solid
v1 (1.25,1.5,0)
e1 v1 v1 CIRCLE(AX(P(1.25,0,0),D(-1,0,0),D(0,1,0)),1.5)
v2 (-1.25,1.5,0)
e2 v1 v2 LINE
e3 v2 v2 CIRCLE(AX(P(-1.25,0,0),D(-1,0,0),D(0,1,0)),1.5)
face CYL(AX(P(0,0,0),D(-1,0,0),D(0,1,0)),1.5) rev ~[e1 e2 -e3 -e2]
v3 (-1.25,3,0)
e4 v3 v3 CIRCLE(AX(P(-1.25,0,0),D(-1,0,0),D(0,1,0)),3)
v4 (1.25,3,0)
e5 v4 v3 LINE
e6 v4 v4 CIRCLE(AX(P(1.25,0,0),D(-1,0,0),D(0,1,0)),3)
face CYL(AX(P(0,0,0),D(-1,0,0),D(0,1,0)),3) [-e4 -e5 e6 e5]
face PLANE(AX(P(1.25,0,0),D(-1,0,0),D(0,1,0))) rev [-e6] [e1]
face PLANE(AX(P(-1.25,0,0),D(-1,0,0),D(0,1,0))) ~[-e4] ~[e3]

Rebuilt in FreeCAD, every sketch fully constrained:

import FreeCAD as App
import Part
import Sketcher
from FreeCAD import Vector
Q = App.Units.Quantity


def add_polygon(sketch, points):
    """Adds a closed chain of lines whose ends are joined by coincident constraints."""
    first, n = sketch.GeometryCount, len(points)
    for a, b in zip(points, points[1:] + points[:1]):
        sketch.addGeometry(Part.LineSegment(App.Vector(*a, 0), App.Vector(*b, 0)), False)
    for i in range(n):
        sketch.addConstraint(Sketcher.Constraint("Coincident", first + i, 2, first + (i + 1) % n, 1))

doc = App.newDocument("Part")
params = doc.addObject("Spreadsheet::Sheet", "Params")
for row, (alias, value) in enumerate([
    ("sketch1_width", "2.5 mm"),
    ("sketch1_height", "1.5 mm"),
    ("revolution_angle", "360 deg"),
], start=1):
    params.set(f"A{row}", alias)
    params.set(f"B{row}", "=" + value)
    params.setAlias(f"B{row}", alias)

body = doc.addObject("PartDesign::Body", "Body")

sketch1 = body.newObject("Sketcher::SketchObject", "Sketch")
sketch1.AttachmentSupport = (doc.getObject("XY_Plane"), [""])
sketch1.MapMode = "FlatFace"
add_polygon(sketch1, [(1.25, 3), (1.25, 1.5), (-1.25, 1.5), (-1.25, 3)])
sketch1.addConstraint(Sketcher.Constraint("Vertical", 0))
sketch1.addConstraint(Sketcher.Constraint("Horizontal", 1))
sketch1.addConstraint(Sketcher.Constraint("Vertical", 2))
sketch1.addConstraint(Sketcher.Constraint("Horizontal", 3))
sketch1.addConstraint(Sketcher.Constraint("DistanceX", 1, 2, 1, 1, Q("2.5 mm")))
sketch1.addConstraint(Sketcher.Constraint("DistanceY", 0, 2, 0, 1, Q("1.5 mm")))
sketch1.addConstraint(Sketcher.Constraint("DistanceY", -1, 1, 2, 2, Q("3 mm")))
sketch1.addConstraint(Sketcher.Constraint("DistanceX", -1, 1, 0, 2, Q("1.25 mm")))
sketch1.setExpression("Constraints[8]", "Params.sketch1_width")
sketch1.setExpression("Constraints[9]", "Params.sketch1_height")
revolution = body.newObject("PartDesign::Revolution", "Revolution")
revolution.Profile = sketch1
revolution.ReferenceAxis = (sketch1, ["H_Axis"])
revolution.setExpression("Angle", "Params.revolution_angle")

doc.recompute()
